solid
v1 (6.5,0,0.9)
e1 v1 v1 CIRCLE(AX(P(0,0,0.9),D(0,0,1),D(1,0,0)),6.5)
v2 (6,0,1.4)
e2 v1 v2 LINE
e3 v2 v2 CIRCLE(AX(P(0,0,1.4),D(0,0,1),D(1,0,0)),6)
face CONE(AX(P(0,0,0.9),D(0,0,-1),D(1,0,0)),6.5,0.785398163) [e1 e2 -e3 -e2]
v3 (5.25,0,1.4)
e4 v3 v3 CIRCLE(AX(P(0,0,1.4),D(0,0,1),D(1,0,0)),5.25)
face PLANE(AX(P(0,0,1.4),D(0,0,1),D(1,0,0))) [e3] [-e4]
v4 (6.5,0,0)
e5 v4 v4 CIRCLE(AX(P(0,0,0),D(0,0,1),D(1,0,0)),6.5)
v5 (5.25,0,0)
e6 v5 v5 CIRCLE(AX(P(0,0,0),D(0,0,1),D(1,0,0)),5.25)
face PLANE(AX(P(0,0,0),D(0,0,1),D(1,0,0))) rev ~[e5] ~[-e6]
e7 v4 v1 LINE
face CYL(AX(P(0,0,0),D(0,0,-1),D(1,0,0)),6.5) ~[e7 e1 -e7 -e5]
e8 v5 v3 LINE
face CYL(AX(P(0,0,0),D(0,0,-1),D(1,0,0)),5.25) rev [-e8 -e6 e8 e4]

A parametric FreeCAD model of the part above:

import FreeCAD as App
import Part
import Sketcher

V = App.Vector
Q = App.Units.Quantity


def edges_at(feature, points):
    """Names of the edges that pass closest to the given points."""
    edges = feature.Shape.Edges
    near = lambda p: min(range(len(edges)), key=lambda i: edges[i].distToShape(Part.Vertex(*p))[0])
    return sorted({f"Edge{near(p) + 1}" for p in points})

doc = App.newDocument("Part")
body = doc.addObject("PartDesign::Body", "Body")

sketch1 = doc.addObject("Sketcher::SketchObject", "Sketch")
body.addObject(sketch1)
sketch1.AttachmentSupport = (doc.XY_Plane, [""])
sketch1.MapMode = "FlatFace"
sketch1.addGeometry([
    Part.Circle(V(0, 0, 0), V(0, 0, 1), 6.5),
    Part.Circle(V(0, 0, 0), V(0, 0, 1), 5.25),
], False)
sketch1.addConstraint([
    Sketcher.Constraint("Coincident", 0, 3, -1, 1),
    Sketcher.Constraint("Coincident", 1, 3, -1, 1),
    Sketcher.Constraint("Diameter", 0, Q("13 mm")),
    Sketcher.Constraint("Diameter", 1, Q("10.5 mm")),
])
pad1 = doc.addObject("PartDesign::Pad", "Pad")
body.addObject(pad1)
pad1.Profile = sketch1
pad1.Length = 1.4
doc.recompute()

chamfer = doc.addObject("PartDesign::Chamfer", "Chamfer")
body.addObject(chamfer)
chamfer.Base = (pad1, edges_at(pad1, [(-6.5, 0, 1.4)]))
chamfer.Size = 0.5

doc.recompute()
